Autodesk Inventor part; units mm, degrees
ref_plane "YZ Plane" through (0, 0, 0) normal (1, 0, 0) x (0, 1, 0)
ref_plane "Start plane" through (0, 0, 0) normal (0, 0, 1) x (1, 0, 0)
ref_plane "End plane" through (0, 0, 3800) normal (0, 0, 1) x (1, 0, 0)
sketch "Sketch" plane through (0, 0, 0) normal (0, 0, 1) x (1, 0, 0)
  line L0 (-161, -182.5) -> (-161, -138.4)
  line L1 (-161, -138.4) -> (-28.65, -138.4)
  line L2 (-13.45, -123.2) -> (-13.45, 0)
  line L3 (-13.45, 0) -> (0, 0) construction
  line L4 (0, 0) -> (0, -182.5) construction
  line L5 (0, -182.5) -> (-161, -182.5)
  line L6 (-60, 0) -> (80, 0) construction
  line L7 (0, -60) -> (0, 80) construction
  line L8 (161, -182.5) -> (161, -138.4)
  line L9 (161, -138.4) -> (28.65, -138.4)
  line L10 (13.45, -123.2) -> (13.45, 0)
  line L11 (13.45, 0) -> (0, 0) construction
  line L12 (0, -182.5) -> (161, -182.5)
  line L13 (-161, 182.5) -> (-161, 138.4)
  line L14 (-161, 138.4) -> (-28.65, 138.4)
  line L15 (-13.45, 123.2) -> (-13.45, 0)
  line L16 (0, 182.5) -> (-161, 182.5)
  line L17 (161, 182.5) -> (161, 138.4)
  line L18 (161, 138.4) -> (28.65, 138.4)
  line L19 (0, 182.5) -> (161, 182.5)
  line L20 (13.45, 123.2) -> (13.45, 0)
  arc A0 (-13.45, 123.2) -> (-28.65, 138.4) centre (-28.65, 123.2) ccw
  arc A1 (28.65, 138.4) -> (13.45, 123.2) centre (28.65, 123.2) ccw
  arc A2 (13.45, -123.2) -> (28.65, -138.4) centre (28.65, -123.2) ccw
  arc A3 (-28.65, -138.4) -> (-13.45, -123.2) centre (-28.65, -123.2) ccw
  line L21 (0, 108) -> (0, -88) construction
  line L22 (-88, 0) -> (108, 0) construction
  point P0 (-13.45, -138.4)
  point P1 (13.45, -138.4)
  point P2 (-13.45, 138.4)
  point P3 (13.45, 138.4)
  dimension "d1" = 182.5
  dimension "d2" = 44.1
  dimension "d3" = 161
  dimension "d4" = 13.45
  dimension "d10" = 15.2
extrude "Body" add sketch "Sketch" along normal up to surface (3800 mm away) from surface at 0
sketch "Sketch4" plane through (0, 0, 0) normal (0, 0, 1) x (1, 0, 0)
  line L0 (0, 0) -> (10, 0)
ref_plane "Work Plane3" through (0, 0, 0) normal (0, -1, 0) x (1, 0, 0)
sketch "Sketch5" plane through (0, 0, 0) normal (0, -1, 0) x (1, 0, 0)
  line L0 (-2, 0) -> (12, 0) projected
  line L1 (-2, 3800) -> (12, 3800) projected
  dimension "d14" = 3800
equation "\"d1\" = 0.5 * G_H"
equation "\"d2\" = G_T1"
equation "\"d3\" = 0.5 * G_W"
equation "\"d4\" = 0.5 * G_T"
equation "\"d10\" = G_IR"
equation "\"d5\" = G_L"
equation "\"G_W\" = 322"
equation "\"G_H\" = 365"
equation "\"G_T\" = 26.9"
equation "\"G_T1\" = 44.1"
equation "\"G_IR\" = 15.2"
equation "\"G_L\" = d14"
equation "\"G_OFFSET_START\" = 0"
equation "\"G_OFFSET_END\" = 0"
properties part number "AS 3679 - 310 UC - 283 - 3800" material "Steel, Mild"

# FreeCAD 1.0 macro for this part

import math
import FreeCAD as App
import Part
import Sketcher

V = App.Vector

doc = App.newDocument("Part")
body = doc.addObject("PartDesign::Body", "Body")

sketch1 = body.newObject("Sketcher::SketchObject", "Sketch")
sketch1.AttachmentSupport = (doc.getObject("XY_Plane"), [""])
sketch1.MapMode = "FlatFace"
sketch1.addGeometry([
    Part.LineSegment(V(-161, -138, 0), V(-161, -182, 0)),
    Part.LineSegment(V(-161, -182, 0), V(161, -182, 0)),
    Part.LineSegment(V(161, -182, 0), V(161, -138, 0)),
    Part.LineSegment(V(161, -138, 0), V(29, -138, 0)),
    Part.ArcOfCircle(Part.Circle(V(29, -123, 0), V(0, 0, 1), 15), math.radians(180), math.radians(270)),
    Part.LineSegment(V(13, -123, 0), V(13, 123, 0)),
    Part.ArcOfCircle(Part.Circle(V(29, 123, 0), V(0, 0, 1), 15), math.radians(90), math.radians(180)),
    Part.LineSegment(V(29, 138, 0), V(161, 138, 0)),
    Part.LineSegment(V(161, 138, 0), V(161, 182, 0)),
    Part.LineSegment(V(161, 182, 0), V(-161, 182, 0)),
    Part.LineSegment(V(-161, 182, 0), V(-161, 138, 0)),
    Part.LineSegment(V(-161, 138, 0), V(-29, 138, 0)),
    Part.ArcOfCircle(Part.Circle(V(-29, 123, 0), V(0, 0, 1), 15), math.radians(0), math.radians(90)),
    Part.LineSegment(V(-13, 123, 0), V(-13, -123, 0)),
    Part.ArcOfCircle(Part.Circle(V(-29, -123, 0), V(0, 0, 1), 15), math.radians(-90), math.radians(0)),
    Part.LineSegment(V(-29, -138, 0), V(-161, -138, 0)),
], False)
sketch1.addConstraint([
    Sketcher.Constraint("Coincident", 0, 2, 1, 1),
    Sketcher.Constraint("Coincident", 1, 2, 2, 1),
    Sketcher.Constraint("Coincident", 2, 2, 3, 1),
    Sketcher.Constraint("Tangent", 3, 2, 4, 2),
    Sketcher.Constraint("Tangent", 4, 1, 5, 1),
    Sketcher.Constraint("Tangent", 5, 2, 6, 2),
    Sketcher.Constraint("Tangent", 6, 1, 7, 1),
    Sketcher.Constraint("Coincident", 7, 2, 8, 1),
    Sketcher.Constraint("Coincident", 8, 2, 9, 1),
    Sketcher.Constraint("Coincident", 9, 2, 10, 1),
    Sketcher.Constraint("Coincident", 10, 2, 11, 1),
    Sketcher.Constraint("Tangent", 11, 2, 12, 2),
    Sketcher.Constraint("Tangent", 12, 1, 13, 1),
    Sketcher.Constraint("Tangent", 13, 2, 14, 2),
    Sketcher.Constraint("Tangent", 14, 1, 15, 1),
    Sketcher.Constraint("Coincident", 15, 2, 0, 1),
    Sketcher.Constraint("Vertical", 0),
    Sketcher.Constraint("Horizontal", 1),
    Sketcher.Constraint("Vertical", 2),
    Sketcher.Constraint("Horizontal", 3),
    Sketcher.Constraint("Vertical", 5),
    Sketcher.Constraint("Horizontal", 7),
    Sketcher.Constraint("Vertical", 8),
    Sketcher.Constraint("Horizontal", 9),
    Sketcher.Constraint("Vertical", 10),
    Sketcher.Constraint("Horizontal", 11),
    Sketcher.Constraint("Vertical", 13),
    Sketcher.Constraint("Horizontal", 15),
    Sketcher.Constraint("Equal", 4, 6),
    Sketcher.Constraint("Equal", 6, 12),
    Sketcher.Constraint("Equal", 12, 14),
    Sketcher.Constraint("Symmetric", 4, 3, 12, 3, -1, 1),
    Sketcher.Constraint("Symmetric", 0, 2, 8, 2, -1, 1),
    Sketcher.Constraint("Symmetric", 7, 2, 10, 2, -2),
    Sketcher.Constraint("Symmetric", 2, 2, 15, 2, -2),
    Sketcher.Constraint("Radius", 4, 15.2),
    Sketcher.Constraint("DistanceY", 0, 2, 0, 1, 44.1),
    Sketcher.Constraint("DistanceX", 0, 2, -1, 1, 161.0),
    Sketcher.Constraint("DistanceY", 0, 2, -1, 1, 182.5),
    Sketcher.Constraint("DistanceX", -1, 1, 4, 1, 13.45),
])
pad1 = body.newObject("PartDesign::Pad", "Pad")
pad1.Profile = sketch1
pad1.Length = 3800

doc.recompute()
